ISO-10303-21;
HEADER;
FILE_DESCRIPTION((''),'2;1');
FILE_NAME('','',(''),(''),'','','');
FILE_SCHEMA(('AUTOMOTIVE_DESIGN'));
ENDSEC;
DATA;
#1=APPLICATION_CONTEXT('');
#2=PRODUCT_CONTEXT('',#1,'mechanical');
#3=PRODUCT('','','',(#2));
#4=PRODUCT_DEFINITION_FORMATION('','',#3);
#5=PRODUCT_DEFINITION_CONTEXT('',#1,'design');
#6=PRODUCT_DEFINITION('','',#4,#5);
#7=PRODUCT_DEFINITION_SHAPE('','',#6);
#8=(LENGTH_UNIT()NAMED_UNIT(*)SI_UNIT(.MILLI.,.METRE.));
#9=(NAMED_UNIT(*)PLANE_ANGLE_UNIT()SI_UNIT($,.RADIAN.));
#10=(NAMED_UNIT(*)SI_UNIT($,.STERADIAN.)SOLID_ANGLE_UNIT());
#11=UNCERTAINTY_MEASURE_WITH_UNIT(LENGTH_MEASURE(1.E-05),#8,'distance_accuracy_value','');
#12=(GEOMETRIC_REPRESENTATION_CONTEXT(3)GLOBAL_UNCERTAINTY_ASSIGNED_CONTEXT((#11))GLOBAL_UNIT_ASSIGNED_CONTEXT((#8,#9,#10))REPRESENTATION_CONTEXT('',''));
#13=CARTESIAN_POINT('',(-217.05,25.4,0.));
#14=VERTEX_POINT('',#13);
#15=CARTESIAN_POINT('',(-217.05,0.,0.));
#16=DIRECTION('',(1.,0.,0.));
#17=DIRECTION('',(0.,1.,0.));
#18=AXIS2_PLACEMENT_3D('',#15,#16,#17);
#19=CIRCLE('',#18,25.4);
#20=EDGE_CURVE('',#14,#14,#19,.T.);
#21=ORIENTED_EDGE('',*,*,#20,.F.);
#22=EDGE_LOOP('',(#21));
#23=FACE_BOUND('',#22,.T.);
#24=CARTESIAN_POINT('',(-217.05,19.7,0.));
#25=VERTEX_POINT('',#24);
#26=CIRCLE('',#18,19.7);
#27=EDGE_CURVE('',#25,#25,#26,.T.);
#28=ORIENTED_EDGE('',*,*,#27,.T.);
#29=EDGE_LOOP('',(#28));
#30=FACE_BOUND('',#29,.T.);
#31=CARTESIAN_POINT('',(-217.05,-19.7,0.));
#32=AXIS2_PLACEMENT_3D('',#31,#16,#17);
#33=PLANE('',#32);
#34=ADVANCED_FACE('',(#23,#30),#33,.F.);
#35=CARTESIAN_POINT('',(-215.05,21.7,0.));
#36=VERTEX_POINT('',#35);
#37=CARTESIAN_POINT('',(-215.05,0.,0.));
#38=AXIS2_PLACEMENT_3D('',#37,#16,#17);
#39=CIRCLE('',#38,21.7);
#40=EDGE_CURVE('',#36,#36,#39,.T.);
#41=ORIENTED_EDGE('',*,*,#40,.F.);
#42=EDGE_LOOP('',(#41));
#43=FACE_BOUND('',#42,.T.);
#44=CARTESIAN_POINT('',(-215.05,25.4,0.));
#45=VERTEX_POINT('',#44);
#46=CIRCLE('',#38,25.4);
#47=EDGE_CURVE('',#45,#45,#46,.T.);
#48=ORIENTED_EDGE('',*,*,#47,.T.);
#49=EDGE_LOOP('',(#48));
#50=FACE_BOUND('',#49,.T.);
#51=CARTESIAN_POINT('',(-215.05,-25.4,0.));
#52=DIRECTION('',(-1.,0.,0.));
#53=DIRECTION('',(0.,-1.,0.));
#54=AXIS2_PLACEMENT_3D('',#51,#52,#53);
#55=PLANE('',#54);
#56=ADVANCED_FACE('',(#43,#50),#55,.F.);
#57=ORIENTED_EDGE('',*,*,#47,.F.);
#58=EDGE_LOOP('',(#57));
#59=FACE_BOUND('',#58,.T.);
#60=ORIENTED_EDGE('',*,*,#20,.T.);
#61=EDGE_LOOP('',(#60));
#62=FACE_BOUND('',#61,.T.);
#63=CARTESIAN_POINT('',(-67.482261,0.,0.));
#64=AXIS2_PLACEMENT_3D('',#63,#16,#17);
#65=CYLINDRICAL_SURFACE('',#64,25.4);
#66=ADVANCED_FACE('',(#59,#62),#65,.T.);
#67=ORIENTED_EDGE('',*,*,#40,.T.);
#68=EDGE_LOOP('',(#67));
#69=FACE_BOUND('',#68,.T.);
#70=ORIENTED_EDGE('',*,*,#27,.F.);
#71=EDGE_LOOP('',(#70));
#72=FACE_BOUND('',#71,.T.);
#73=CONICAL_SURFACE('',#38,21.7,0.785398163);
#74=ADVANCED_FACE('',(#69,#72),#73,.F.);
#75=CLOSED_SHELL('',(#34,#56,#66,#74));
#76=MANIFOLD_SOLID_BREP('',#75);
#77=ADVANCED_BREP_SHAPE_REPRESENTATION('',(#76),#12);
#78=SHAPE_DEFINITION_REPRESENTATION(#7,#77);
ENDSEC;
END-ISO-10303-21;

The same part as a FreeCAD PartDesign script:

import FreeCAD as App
import Part
import Sketcher
from FreeCAD import Vector
Q = App.Units.Quantity

doc = App.newDocument("Part")
params = doc.addObject("Spreadsheet::Sheet", "Params")
for row, (alias, value) in enumerate([
    ("sketch1_width", "2 mm"),
    ("sketch1_height", "5.7 mm"),
    ("revolution_angle", "360 deg"),
], start=1):
    params.set(f"A{row}", alias)
    params.set(f"B{row}", "=" + value)
    params.setAlias(f"B{row}", alias)

body = doc.addObject("PartDesign::Body", "Body")

# Sketch on XY plane
sketch1 = body.newObject("Sketcher::SketchObject", "Sketch")
sketch1.AttachmentSupport = (doc.getObject("XY_Plane"), [""])
sketch1.MapMode = "FlatFace"
sketch1.addGeometry([
    Part.LineSegment(Vector(-217.1, -19.7, 0), Vector(-217.1, -25.4, 0)),
    Part.LineSegment(Vector(-217.1, -25.4, 0), Vector(-215.1, -25.4, 0)),
    Part.LineSegment(Vector(-215.1, -25.4, 0), Vector(-215.1, -21.7, 0)),
    Part.LineSegment(Vector(-215.1, -21.7, 0), Vector(-217.1, -19.7, 0)),
], False)
sketch1.addConstraint([
    Sketcher.Constraint("Coincident", 0, 2, 1, 1),
    Sketcher.Constraint("Coincident", 1, 2, 2, 1),
    Sketcher.Constraint("Coincident", 2, 2, 3, 1),
    Sketcher.Constraint("Coincident", 3, 2, 0, 1),
    Sketcher.Constraint("Vertical", 0),
    Sketcher.Constraint("Horizontal", 1),
    Sketcher.Constraint("Vertical", 2),
    Sketcher.Constraint("DistanceX", 1, 1, 1, 2, 2.0),
    Sketcher.Constraint("Angle", 3, Q("135 deg")),
    Sketcher.Constraint("DistanceY", 0, 2, 0, 1, 5.7),
    Sketcher.Constraint("DistanceY", 0, 2, -1, 1, 25.4),
    Sketcher.Constraint("DistanceX", 0, 2, -1, 1, 217.05),
])
sketch1.setExpression("Constraints[7]", "Params.sketch1_width")
sketch1.setExpression("Constraints[9]", "Params.sketch1_height")
revolution = body.newObject("PartDesign::Revolution", "Revolution")
revolution.Profile = sketch1
revolution.ReferenceAxis = (sketch1, ["H_Axis"])
revolution.setExpression("Angle", "Params.revolution_angle")

doc.recompute()
